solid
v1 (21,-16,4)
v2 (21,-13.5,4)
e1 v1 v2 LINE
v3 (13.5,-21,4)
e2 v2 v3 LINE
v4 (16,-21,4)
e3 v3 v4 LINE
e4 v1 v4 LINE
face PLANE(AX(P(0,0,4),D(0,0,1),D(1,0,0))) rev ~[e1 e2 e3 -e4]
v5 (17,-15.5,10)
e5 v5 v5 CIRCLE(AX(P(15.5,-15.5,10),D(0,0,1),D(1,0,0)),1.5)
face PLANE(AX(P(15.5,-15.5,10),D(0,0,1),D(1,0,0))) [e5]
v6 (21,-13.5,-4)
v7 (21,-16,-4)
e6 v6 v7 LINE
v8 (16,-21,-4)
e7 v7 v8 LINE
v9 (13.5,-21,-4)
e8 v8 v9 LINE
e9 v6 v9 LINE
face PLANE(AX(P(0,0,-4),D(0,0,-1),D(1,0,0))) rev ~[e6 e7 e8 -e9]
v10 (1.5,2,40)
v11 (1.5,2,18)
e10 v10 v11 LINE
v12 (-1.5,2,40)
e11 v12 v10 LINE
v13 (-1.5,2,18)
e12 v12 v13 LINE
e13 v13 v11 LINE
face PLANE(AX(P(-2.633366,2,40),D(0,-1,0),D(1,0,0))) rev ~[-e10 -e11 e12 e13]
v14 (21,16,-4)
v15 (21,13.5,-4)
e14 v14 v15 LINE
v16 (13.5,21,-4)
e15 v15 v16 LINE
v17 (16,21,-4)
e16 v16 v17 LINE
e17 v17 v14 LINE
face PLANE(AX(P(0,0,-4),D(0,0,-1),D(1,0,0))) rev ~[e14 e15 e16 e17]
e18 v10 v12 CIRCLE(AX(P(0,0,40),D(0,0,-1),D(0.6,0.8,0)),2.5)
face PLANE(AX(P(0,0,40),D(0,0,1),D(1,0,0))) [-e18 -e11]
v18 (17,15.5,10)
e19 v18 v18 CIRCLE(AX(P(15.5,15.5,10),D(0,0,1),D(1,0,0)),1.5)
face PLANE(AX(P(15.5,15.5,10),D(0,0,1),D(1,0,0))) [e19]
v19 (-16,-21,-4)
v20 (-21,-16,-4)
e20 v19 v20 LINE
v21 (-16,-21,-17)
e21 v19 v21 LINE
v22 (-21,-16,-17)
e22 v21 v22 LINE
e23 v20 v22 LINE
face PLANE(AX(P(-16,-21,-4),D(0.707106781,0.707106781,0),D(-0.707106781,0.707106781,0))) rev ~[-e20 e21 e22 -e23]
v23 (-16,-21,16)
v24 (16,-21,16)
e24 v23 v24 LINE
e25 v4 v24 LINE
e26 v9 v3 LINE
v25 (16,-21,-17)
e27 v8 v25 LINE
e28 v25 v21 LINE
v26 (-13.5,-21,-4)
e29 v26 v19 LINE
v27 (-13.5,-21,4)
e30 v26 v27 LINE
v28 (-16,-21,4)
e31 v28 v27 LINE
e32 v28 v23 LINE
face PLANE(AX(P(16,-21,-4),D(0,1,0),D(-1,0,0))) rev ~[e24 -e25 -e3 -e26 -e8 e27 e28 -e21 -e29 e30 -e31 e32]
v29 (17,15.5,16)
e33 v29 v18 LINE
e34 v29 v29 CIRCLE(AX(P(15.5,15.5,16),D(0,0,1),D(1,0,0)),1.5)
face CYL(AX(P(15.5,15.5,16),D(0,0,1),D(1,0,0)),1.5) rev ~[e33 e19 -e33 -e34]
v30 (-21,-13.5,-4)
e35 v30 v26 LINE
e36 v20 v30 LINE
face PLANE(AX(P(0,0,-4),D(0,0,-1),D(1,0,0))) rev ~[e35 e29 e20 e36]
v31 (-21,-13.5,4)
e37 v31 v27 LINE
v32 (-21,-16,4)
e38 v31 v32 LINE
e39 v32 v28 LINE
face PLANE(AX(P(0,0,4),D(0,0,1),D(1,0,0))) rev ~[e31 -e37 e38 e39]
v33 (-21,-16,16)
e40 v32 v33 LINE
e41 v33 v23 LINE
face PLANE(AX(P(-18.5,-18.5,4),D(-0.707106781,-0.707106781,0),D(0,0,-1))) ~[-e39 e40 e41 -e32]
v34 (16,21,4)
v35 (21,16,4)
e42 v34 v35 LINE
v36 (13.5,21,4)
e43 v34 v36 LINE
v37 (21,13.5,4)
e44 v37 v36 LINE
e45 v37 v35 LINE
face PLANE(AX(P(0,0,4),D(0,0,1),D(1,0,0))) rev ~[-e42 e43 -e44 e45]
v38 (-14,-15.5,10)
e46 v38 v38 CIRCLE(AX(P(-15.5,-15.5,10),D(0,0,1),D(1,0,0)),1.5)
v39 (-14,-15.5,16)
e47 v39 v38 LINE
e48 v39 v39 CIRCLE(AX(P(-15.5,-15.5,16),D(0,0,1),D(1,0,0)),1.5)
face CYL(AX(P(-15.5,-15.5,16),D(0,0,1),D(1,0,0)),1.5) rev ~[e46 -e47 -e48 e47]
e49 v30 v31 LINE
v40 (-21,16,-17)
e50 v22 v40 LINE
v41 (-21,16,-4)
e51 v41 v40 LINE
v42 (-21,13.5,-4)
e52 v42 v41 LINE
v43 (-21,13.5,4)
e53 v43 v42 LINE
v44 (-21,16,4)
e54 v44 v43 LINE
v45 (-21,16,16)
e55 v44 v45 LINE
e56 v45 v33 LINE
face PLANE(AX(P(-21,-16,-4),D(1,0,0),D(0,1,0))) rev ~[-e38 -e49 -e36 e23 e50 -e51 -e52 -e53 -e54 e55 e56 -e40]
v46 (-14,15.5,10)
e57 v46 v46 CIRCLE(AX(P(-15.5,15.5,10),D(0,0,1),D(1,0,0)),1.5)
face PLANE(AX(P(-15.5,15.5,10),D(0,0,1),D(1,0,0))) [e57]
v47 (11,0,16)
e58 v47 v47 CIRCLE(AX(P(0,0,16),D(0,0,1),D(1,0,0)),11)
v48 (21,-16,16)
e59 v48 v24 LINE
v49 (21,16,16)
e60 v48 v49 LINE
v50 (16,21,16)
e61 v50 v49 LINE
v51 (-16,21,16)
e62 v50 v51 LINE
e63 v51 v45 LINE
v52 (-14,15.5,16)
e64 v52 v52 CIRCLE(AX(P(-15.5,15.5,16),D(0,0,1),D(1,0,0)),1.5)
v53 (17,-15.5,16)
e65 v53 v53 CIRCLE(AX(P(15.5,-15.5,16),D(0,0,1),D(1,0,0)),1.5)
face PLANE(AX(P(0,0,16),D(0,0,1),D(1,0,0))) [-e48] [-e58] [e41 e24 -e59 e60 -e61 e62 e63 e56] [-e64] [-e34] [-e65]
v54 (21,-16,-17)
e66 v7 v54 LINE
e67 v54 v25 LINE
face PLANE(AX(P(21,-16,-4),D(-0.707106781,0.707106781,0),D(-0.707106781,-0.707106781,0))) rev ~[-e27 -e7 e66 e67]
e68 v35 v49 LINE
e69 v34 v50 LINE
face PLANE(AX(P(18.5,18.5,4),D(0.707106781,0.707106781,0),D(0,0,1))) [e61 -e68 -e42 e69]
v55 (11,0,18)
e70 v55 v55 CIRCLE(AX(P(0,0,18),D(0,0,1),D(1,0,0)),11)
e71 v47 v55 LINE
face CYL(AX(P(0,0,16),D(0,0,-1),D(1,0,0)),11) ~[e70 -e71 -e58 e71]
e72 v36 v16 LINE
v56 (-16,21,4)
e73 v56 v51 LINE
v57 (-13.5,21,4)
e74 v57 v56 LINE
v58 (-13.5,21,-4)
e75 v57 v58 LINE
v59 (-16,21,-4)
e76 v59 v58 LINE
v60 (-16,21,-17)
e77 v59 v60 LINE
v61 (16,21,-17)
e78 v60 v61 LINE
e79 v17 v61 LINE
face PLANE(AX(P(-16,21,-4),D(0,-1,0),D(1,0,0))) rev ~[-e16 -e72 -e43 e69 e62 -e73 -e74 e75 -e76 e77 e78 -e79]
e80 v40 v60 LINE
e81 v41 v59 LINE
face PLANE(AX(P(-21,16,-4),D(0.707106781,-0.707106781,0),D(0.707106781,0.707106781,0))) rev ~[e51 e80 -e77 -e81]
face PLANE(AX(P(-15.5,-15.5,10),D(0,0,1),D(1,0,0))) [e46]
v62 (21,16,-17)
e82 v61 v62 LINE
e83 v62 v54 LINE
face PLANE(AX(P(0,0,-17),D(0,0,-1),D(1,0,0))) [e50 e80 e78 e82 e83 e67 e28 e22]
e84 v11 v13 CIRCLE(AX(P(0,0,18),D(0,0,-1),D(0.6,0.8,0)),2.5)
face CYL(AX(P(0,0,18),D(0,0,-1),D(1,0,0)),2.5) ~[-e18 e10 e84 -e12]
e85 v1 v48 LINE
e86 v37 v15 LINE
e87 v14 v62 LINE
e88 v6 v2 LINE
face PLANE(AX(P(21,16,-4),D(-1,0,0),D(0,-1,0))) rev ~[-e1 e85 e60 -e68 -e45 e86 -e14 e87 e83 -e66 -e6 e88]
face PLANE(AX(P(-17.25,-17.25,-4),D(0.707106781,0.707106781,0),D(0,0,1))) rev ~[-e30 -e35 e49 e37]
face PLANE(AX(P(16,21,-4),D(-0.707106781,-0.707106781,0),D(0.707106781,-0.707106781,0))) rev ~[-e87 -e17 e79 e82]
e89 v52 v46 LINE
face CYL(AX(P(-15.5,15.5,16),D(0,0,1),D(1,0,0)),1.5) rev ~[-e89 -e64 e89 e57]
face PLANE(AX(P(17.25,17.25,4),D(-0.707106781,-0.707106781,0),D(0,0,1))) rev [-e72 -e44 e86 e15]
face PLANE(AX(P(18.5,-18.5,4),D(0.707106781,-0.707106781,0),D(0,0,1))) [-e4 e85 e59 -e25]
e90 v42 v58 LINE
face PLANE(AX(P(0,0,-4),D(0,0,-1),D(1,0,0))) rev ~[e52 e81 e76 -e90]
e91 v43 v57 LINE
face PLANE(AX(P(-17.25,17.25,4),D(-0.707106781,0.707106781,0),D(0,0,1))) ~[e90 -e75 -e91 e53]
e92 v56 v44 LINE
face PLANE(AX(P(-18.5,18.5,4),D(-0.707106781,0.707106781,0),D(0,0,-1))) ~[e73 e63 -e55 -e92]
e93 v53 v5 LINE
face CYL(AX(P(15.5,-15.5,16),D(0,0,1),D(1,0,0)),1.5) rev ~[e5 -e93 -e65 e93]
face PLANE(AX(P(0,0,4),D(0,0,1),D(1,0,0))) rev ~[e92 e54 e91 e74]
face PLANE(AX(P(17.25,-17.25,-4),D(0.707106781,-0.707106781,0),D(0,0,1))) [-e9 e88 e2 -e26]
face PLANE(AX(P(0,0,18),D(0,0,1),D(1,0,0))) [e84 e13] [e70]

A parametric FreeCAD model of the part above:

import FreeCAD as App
import Part
import Sketcher
Q = App.Units.Quantity


def edges_at(feature, points):
    """Names of the edges that pass closest to the given points."""
    edges = feature.Shape.Edges
    near = lambda p: min(range(len(edges)), key=lambda i: edges[i].distToShape(Part.Vertex(*p))[0])
    return sorted({f"Edge{near(p) + 1}" for p in points})

doc = App.newDocument("Part")
body = doc.addObject("PartDesign::Body", "Body")

# Sketch on XY plane
sketch1 = body.newObject("Sketcher::SketchObject", "Sketch")
sketch1.AttachmentSupport = (doc.getObject("XY_Plane"), [""])
sketch1.MapMode = "FlatFace"
sketch1.addGeometry([
    Part.LineSegment(App.Vector(-21, 21, 0), App.Vector(-21, -21, 0)),
    Part.LineSegment(App.Vector(-21, -21, 0), App.Vector(21, -21, 0)),
    Part.LineSegment(App.Vector(21, -21, 0), App.Vector(21, 21, 0)),
    Part.LineSegment(App.Vector(21, 21, 0), App.Vector(-21, 21, 0)),
], False)
sketch1.addConstraint([
    Sketcher.Constraint("Coincident", 0, 2, 1, 1),
    Sketcher.Constraint("Coincident", 1, 2, 2, 1),
    Sketcher.Constraint("Coincident", 2, 2, 3, 1),
    Sketcher.Constraint("Coincident", 3, 2, 0, 1),
    Sketcher.Constraint("Vertical", 0),
    Sketcher.Constraint("Horizontal", 1),
    Sketcher.Constraint("Vertical", 2),
    Sketcher.Constraint("Horizontal", 3),
    Sketcher.Constraint("Symmetric", 0, 2, 2, 2, -1, 1),
    Sketcher.Constraint("Equal", 3, 0),
    Sketcher.Constraint("DistanceX", 1, 1, 1, 2, Q("42 mm")),
])
pad1 = body.newObject("PartDesign::Pad", "Pad")
pad1.Profile = sketch1
pad1.Length = 8
pad1.Midplane = True
doc.recompute()

chamfer = body.newObject("PartDesign::Chamfer", "Chamfer")
chamfer.Base = (pad1, edges_at(pad1, [
    (21, 21, 0),
    (-21, 21, 0),
    (-21, -21, 0),
    (21, -21, 0),
]))
chamfer.Size = 7.5

# Sketch on XY plane
sketch2 = body.newObject("Sketcher::SketchObject", "Sketch001")
sketch2.AttachmentSupport = (doc.getObject("XY_Plane"), [""])
sketch2.MapMode = "FlatFace"
sketch2.AttachmentOffset = App.Placement(App.Vector(0, 0, 4), App.Rotation())
sketch2.addGeometry([
    Part.LineSegment(App.Vector(21, 21, 0), App.Vector(-21, 21, 0)),
    Part.LineSegment(App.Vector(-21, 21, 0), App.Vector(-21, -21, 0)),
    Part.LineSegment(App.Vector(-21, -21, 0), App.Vector(21, -21, 0)),
    Part.LineSegment(App.Vector(21, -21, 0), App.Vector(21, 21, 0)),
], False)
sketch2.addConstraint([
    Sketcher.Constraint("Coincident", 0, 2, 1, 1),
    Sketcher.Constraint("Coincident", 1, 2, 2, 1),
    Sketcher.Constraint("Coincident", 2, 2, 3, 1),
    Sketcher.Constraint("Coincident", 3, 2, 0, 1),
    Sketcher.Constraint("Horizontal", 0),
    Sketcher.Constraint("Vertical", 1),
    Sketcher.Constraint("Horizontal", 2),
    Sketcher.Constraint("Vertical", 3),
    Sketcher.Constraint("Symmetric", 0, 2, 2, 2, -1, 1),
    Sketcher.Constraint("Equal", 2, 1),
    Sketcher.Constraint("DistanceX", 0, 2, 0, 1, Q("42 mm")),
])
pad2 = body.newObject("PartDesign::Pad", "Pad001")
pad2.Profile = sketch2
pad2.Length = 12
doc.recompute()

chamfer2 = body.newObject("PartDesign::Chamfer", "Chamfer001")
chamfer2.Base = (pad2, edges_at(pad2, [
    (21, -21, 10),
    (-21, -21, 10),
    (-21, 21, 10),
    (21, 21, 10),
]))
chamfer2.Size = 5

# Sketch on XY plane
sketch3 = body.newObject("Sketcher::SketchObject", "Sketch002")
sketch3.AttachmentSupport = (doc.getObject("XY_Plane"), [""])
sketch3.MapMode = "FlatFace"
sketch3.AttachmentOffset = App.Placement(App.Vector(0, 0, -4), App.Rotation())
sketch3.addGeometry([
    Part.LineSegment(App.Vector(21, 16, 0), App.Vector(21, -16, 0)),  # 0
    Part.LineSegment(App.Vector(21, -16, 0), App.Vector(16, -21, 0)),  # 1
    Part.LineSegment(App.Vector(16, -21, 0), App.Vector(-16, -21, 0)),  # 2
    Part.LineSegment(App.Vector(-16, -21, 0), App.Vector(-21, -16, 0)),  # 3
    Part.LineSegment(App.Vector(-21, -16, 0), App.Vector(-21, 16, 0)),  # 4
    Part.LineSegment(App.Vector(-21, 16, 0), App.Vector(-16, 21, 0)),  # 5
    Part.LineSegment(App.Vector(-16, 21, 0), App.Vector(16, 21, 0)),  # 6
    Part.LineSegment(App.Vector(16, 21, 0), App.Vector(21, 16, 0)),  # 7
], False)
sketch3.addConstraint([
    Sketcher.Constraint("Coincident", 0, 2, 1, 1),
    Sketcher.Constraint("Coincident", 1, 2, 2, 1),
    Sketcher.Constraint("Coincident", 2, 2, 3, 1),
    Sketcher.Constraint("Coincident", 3, 2, 4, 1),
    Sketcher.Constraint("Coincident", 4, 2, 5, 1),
    Sketcher.Constraint("Coincident", 5, 2, 6, 1),
    Sketcher.Constraint("Coincident", 6, 2, 7, 1),
    Sketcher.Constraint("Coincident", 7, 2, 0, 1),
    Sketcher.Constraint("Vertical", 0),
    Sketcher.Constraint("Horizontal", 2),
    Sketcher.Constraint("Vertical", 4),
    Sketcher.Constraint("Horizontal", 6),
    Sketcher.Constraint("Symmetric", 0, 2, 4, 2, -1, 1),
    Sketcher.Constraint("Symmetric", 1, 2, 5, 2, -1, 1),
    Sketcher.Constraint("Perpendicular", 1, 3),
    Sketcher.Constraint("Perpendicular", 5, 7),
    Sketcher.Constraint("Horizontal", 0, 2, 3, 2),
    Sketcher.Constraint("Horizontal", 4, 2, 7, 2),
    Sketcher.Constraint("Vertical", 2, 2, 5, 2),
    Sketcher.Constraint("Equal", 6, 0),
    Sketcher.Constraint("DistanceX", 2, 2, 2, 1, Q("32 mm")),
    Sketcher.Constraint("DistanceX", -1, 1, 0, 2, Q("21 mm")),
])
pad3 = body.newObject("PartDesign::Pad", "Pad002")
pad3.Profile = sketch3
pad3.Length = 13
pad3.Reversed = True

# Sketch on XY plane
sketch4 = body.newObject("Sketcher::SketchObject", "Sketch003")
sketch4.AttachmentSupport = (doc.getObject("XY_Plane"), [""])
sketch4.MapMode = "FlatFace"
sketch4.AttachmentOffset = App.Placement(App.Vector(0, 0, 16), App.Rotation())
sketch4.addGeometry(Part.Circle(App.Vector(0, 0, 0), App.Vector(0, 0, 1), 11), False)
sketch4.addConstraint([
    Sketcher.Constraint("Coincident", 0, 3, -1, 1),
    Sketcher.Constraint("Diameter", 0, Q("22 mm")),
])
pad4 = body.newObject("PartDesign::Pad", "Pad003")
pad4.Profile = sketch4
pad4.Length = 2

# Sketch on XY plane
sketch5 = body.newObject("Sketcher::SketchObject", "Sketch004")
sketch5.AttachmentSupport = (doc.getObject("XY_Plane"), [""])
sketch5.MapMode = "FlatFace"
sketch5.AttachmentOffset = App.Placement(App.Vector(0, 0, 18), App.Rotation())
sketch5.addGeometry(Part.Circle(App.Vector(0, 0, 0), App.Vector(0, 0, 1), 2.5), False)
sketch5.addConstraint([
    Sketcher.Constraint("Coincident", 0, 3, -1, 1),
    Sketcher.Constraint("Diameter", 0, Q("5 mm")),
])
pad5 = body.newObject("PartDesign::Pad", "Pad004")
pad5.Profile = sketch5
pad5.Length = 22

# Sketch on XY plane
sketch6 = body.newObject("Sketcher::SketchObject", "Sketch005")
sketch6.AttachmentSupport = (doc.getObject("XY_Plane"), [""])
sketch6.MapMode = "FlatFace"
sketch6.AttachmentOffset = App.Placement(App.Vector(0, 0, 40), App.Rotation())
sketch6.addGeometry([
    Part.LineSegment(App.Vector(-2.633366, 2.933404, 0), App.Vector(-2.633366, 2, 0)),
    Part.LineSegment(App.Vector(-2.633366, 2, 0), App.Vector(2.620363, 2, 0)),
    Part.LineSegment(App.Vector(2.620363, 2, 0), App.Vector(2.620363, 2.933404, 0)),
    Part.LineSegment(App.Vector(2.620363, 2.933404, 0), App.Vector(-2.633366, 2.933404, 0)),
], False)
sketch6.addConstraint([
    Sketcher.Constraint("Coincident", 0, 2, 1, 1),
    Sketcher.Constraint("Coincident", 1, 2, 2, 1),
    Sketcher.Constraint("Coincident", 2, 2, 3, 1),
    Sketcher.Constraint("Coincident", 3, 2, 0, 1),
    Sketcher.Constraint("Vertical", 0),
    Sketcher.Constraint("Horizontal", 1),
    Sketcher.Constraint("Vertical", 2),
    Sketcher.Constraint("Horizontal", 3),
    Sketcher.Constraint("DistanceY", -1, 1, 0, 2, Q("2 mm")),
    Sketcher.Constraint("DistanceX", 1, 1, 1, 2, Q("5.253729 mm")),
    Sketcher.Constraint("DistanceY", 0, 2, 0, 1, Q("0.933404 mm")),
    Sketcher.Constraint("DistanceX", 0, 2, -1, 1, Q("2.633366 mm")),
])
pocket1 = body.newObject("PartDesign::Pocket", "Pocket")
pocket1.Profile = sketch6
pocket1.Length = 22

# Sketch on XY plane
sketch7 = body.newObject("Sketcher::SketchObject", "Sketch006")
sketch7.AttachmentSupport = (doc.getObject("XY_Plane"), [""])
sketch7.MapMode = "FlatFace"
sketch7.AttachmentOffset = App.Placement(App.Vector(0, 0, 16), App.Rotation())
sketch7.addGeometry([
    Part.Circle(App.Vector(-15.5, 15.5, 0), App.Vector(0, 0, 1), 1.5),
    Part.Circle(App.Vector(15.5, 15.5, 0), App.Vector(0, 0, 1), 1.5),
    Part.Circle(App.Vector(-15.5, -15.5, 0), App.Vector(0, 0, 1), 1.5),
    Part.Circle(App.Vector(15.5, -15.5, 0), App.Vector(0, 0, 1), 1.5),
], False)
sketch7.addConstraint([
    Sketcher.Constraint("Equal", 0, 1),
    Sketcher.Constraint("Equal", 1, 2),
    Sketcher.Constraint("Equal", 2, 3),
    Sketcher.Constraint("Symmetric", 1, 3, 2, 3, -1, 1),
    Sketcher.Constraint("Symmetric", 0, 3, 3, 3, -1, 1),
    Sketcher.Constraint("Symmetric", 0, 3, 1, 3, -2),
    Sketcher.Constraint("Diameter", 0, Q("3 mm")),
    Sketcher.Constraint("DistanceX", 0, 3, 1, 3, Q("31 mm")),
    Sketcher.Constraint("DistanceY", 2, 3, 0, 3, Q("31 mm")),
])
pocket2 = body.newObject("PartDesign::Pocket", "Pocket001")
pocket2.Profile = sketch7
pocket2.Length = 6

doc.recompute()
